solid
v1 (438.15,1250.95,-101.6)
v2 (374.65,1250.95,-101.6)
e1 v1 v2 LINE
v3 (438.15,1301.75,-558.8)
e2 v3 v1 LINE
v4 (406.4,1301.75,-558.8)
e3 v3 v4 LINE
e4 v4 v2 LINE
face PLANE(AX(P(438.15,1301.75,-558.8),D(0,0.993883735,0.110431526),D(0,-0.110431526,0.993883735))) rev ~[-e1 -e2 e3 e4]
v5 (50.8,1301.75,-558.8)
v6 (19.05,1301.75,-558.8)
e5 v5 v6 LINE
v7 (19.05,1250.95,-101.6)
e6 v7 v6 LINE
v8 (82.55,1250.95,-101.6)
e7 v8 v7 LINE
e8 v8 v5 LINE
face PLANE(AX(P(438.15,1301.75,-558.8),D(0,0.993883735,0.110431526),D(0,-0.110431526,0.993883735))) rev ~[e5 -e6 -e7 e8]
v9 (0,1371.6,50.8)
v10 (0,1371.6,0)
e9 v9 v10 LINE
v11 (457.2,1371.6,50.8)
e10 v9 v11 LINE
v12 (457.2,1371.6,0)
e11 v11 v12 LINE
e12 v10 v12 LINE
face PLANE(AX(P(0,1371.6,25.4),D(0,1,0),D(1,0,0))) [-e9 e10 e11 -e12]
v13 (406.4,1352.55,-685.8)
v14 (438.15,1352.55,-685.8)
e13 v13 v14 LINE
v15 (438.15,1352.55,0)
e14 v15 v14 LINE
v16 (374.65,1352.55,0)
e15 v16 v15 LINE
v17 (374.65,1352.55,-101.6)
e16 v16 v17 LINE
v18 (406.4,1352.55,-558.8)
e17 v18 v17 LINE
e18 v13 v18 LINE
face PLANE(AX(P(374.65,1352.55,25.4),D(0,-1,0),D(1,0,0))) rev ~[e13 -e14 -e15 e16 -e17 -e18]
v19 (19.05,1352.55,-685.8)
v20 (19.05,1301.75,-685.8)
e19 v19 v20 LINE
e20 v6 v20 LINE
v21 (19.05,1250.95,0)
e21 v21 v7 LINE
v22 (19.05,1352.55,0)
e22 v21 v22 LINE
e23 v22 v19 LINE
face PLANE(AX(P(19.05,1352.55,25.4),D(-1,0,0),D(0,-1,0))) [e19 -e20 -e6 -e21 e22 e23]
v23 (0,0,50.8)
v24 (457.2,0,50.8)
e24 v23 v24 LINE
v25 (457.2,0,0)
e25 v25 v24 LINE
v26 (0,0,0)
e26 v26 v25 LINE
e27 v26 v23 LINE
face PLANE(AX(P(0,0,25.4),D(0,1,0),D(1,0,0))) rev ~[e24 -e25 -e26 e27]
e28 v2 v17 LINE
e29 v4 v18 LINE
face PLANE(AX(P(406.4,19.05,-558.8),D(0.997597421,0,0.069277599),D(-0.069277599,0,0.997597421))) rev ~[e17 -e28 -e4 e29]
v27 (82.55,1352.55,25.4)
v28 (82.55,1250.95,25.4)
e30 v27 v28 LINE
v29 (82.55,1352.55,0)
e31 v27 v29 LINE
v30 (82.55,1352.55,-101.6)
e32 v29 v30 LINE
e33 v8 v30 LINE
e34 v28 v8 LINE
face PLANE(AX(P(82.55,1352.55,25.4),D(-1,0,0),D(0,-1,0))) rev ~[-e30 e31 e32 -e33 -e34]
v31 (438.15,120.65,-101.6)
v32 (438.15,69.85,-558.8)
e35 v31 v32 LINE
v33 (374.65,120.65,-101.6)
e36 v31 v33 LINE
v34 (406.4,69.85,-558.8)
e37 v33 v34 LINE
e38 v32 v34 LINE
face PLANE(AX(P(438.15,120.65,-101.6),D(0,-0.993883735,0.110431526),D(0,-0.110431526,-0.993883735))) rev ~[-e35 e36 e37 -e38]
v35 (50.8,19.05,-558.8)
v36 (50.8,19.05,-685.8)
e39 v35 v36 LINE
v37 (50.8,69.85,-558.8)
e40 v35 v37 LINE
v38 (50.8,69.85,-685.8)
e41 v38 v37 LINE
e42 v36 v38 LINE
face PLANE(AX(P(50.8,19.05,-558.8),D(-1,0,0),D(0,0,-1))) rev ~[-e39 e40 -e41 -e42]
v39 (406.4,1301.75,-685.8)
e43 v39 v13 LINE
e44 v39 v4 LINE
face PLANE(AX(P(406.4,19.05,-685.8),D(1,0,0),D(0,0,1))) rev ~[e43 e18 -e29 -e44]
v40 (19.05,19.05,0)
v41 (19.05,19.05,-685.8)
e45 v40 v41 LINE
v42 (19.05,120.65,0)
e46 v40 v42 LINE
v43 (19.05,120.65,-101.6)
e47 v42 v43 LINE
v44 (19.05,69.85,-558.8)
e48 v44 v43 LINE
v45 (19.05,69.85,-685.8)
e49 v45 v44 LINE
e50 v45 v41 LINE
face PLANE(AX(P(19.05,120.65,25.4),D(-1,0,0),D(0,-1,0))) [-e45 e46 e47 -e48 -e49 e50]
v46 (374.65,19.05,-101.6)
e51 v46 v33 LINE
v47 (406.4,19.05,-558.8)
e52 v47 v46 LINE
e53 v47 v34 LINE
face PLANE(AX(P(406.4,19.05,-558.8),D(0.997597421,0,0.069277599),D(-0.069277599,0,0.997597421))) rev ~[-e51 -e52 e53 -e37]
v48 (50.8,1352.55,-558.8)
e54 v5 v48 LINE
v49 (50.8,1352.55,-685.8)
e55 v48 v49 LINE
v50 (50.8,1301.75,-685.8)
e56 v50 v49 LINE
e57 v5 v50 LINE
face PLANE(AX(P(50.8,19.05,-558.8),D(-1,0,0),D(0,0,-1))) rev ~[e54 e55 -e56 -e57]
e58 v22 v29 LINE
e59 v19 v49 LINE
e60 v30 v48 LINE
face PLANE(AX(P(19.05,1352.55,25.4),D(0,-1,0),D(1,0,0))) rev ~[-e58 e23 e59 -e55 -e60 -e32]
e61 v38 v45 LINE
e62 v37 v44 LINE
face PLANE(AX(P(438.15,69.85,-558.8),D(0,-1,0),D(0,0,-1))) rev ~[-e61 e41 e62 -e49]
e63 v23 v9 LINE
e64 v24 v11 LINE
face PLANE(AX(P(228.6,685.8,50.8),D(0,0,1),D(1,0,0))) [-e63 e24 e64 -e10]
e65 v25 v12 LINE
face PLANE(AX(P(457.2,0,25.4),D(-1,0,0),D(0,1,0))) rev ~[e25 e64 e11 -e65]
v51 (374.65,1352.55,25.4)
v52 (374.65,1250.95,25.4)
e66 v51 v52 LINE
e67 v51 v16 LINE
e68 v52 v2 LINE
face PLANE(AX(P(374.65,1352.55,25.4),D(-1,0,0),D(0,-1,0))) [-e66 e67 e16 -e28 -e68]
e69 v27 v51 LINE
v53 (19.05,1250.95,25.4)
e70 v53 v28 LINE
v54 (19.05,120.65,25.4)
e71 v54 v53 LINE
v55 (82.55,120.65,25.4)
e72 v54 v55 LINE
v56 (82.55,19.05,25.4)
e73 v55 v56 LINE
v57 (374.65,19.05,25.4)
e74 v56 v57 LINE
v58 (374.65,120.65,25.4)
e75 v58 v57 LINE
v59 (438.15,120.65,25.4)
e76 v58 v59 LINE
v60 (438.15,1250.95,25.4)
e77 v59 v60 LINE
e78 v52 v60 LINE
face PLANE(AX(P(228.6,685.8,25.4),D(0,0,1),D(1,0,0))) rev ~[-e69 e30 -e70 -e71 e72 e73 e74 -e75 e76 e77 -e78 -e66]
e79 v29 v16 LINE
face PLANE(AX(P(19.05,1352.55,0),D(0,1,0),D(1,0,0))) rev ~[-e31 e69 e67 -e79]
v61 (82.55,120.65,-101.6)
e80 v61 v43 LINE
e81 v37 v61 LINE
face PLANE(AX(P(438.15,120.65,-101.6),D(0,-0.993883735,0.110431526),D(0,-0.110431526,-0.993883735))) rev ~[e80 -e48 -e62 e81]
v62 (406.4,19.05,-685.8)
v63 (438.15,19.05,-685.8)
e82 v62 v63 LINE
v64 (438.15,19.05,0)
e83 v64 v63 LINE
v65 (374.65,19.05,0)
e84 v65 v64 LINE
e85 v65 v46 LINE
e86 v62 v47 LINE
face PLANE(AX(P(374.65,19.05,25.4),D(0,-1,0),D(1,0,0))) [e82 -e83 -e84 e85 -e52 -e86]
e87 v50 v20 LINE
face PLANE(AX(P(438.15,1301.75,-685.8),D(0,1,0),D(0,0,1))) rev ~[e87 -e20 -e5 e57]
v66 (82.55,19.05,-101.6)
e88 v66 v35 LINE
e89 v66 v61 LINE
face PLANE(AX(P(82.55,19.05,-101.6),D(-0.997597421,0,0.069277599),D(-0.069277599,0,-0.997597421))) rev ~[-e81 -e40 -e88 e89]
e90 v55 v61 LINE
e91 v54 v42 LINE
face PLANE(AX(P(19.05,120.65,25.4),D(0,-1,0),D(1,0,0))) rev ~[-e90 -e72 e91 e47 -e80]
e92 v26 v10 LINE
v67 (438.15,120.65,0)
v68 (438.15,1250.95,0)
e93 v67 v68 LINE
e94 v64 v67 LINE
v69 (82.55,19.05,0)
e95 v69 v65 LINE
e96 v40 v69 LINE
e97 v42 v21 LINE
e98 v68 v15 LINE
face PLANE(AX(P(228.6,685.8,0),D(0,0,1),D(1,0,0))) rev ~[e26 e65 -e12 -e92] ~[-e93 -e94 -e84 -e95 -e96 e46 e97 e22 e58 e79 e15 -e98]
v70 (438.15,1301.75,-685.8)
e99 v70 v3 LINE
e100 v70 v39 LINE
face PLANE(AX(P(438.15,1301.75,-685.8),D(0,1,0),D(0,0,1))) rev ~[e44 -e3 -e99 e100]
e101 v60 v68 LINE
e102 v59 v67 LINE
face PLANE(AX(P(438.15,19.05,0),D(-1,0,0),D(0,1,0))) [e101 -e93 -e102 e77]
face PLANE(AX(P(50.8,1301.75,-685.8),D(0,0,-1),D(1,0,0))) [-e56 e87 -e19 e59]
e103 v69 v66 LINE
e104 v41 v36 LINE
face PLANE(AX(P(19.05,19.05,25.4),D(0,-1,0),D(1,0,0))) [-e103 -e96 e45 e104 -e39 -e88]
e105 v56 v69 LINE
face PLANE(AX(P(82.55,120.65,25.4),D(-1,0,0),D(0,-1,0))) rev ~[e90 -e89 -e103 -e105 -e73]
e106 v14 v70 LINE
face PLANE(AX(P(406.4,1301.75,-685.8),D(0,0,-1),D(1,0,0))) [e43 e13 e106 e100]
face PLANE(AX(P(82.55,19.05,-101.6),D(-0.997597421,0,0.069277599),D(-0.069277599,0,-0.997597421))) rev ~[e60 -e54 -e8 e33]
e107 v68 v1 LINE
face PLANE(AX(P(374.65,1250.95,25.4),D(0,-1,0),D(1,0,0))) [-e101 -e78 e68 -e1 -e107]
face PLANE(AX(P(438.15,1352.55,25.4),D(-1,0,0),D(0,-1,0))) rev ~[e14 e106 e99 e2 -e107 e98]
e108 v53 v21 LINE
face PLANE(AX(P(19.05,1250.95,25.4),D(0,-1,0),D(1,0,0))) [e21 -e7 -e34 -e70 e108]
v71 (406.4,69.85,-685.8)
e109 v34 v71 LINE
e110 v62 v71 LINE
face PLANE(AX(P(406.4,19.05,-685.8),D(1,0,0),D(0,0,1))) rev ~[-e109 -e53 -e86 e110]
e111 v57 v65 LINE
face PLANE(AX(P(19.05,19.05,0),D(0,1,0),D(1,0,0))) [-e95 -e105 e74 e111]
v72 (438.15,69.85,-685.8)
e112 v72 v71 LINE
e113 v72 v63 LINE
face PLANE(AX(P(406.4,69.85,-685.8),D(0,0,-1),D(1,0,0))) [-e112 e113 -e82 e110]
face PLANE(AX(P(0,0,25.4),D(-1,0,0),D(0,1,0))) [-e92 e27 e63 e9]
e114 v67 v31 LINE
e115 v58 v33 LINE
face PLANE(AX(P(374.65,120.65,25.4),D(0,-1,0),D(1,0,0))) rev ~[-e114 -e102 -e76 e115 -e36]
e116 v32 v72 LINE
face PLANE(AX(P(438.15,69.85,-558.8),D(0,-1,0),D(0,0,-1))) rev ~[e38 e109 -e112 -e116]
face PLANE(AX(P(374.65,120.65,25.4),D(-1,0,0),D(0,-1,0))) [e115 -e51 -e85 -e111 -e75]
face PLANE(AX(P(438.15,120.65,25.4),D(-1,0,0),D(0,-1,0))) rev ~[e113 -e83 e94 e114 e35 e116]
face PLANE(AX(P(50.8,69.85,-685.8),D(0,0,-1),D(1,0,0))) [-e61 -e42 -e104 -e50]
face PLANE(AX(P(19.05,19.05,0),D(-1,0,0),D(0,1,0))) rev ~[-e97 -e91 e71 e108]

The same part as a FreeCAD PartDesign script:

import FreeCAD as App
import Part
import Sketcher
Q = App.Units.Quantity

doc = App.newDocument("Part")
body = doc.addObject("PartDesign::Body", "Body")

sketch1 = doc.addObject("Sketcher::SketchObject", "Sketch")
body.addObject(sketch1)
sketch1.AttachmentSupport = (doc.XY_Plane, [""])
sketch1.MapMode = "FlatFace"
sketch1.addGeometry([
    Part.LineSegment(App.Vector(0, 1371.6, 0), App.Vector(0, 0, 0)),
    Part.LineSegment(App.Vector(0, 0, 0), App.Vector(457.2, 0, 0)),
    Part.LineSegment(App.Vector(457.2, 0, 0), App.Vector(457.2, 1371.6, 0)),
    Part.LineSegment(App.Vector(457.2, 1371.6, 0), App.Vector(0, 1371.6, 0)),
    Part.LineSegment(App.Vector(438.15, 19.05, 0), App.Vector(19.05, 19.05, 0)),
    Part.LineSegment(App.Vector(19.05, 19.05, 0), App.Vector(19.05, 1352.55, 0)),
    Part.LineSegment(App.Vector(19.05, 1352.55, 0), App.Vector(438.15, 1352.55, 0)),
    Part.LineSegment(App.Vector(438.15, 1352.55, 0), App.Vector(438.15, 19.05, 0)),
], False)
sketch1.addConstraint([
    Sketcher.Constraint("Coincident", 0, 2, 1, 1),
    Sketcher.Constraint("Coincident", 1, 2, 2, 1),
    Sketcher.Constraint("Coincident", 2, 2, 3, 1),
    Sketcher.Constraint("Coincident", 3, 2, 0, 1),
    Sketcher.Constraint("Coincident", 4, 2, 5, 1),
    Sketcher.Constraint("Coincident", 5, 2, 6, 1),
    Sketcher.Constraint("Coincident", 6, 2, 7, 1),
    Sketcher.Constraint("Coincident", 7, 2, 4, 1),
    Sketcher.Constraint("Vertical", 0),
    Sketcher.Constraint("Horizontal", 1),
    Sketcher.Constraint("Vertical", 2),
    Sketcher.Constraint("Horizontal", 3),
    Sketcher.Constraint("Horizontal", 4),
    Sketcher.Constraint("Vertical", 5),
    Sketcher.Constraint("Horizontal", 6),
    Sketcher.Constraint("Vertical", 7),
    Sketcher.Constraint("Coincident", 0, 2, -1, 1),
    Sketcher.Constraint("DistanceX", 1, 1, 1, 2, Q("18 in")),
    Sketcher.Constraint("DistanceY", 0, 2, 0, 1, Q("54 in")),
    Sketcher.Constraint("DistanceX", 4, 2, 4, 1, Q("16.5 in")),
    Sketcher.Constraint("DistanceY", 5, 1, 5, 2, Q("52.5 in")),
    Sketcher.Constraint("DistanceX", -1, 1, 4, 2, Q("0.75 in")),
    Sketcher.Constraint("DistanceY", -1, 1, 4, 2, Q("0.75 in")),
])
pad1 = doc.addObject("PartDesign::Pad", "Pad")
body.addObject(pad1)
pad1.Profile = sketch1
pad1.Length = Q("1 in")

sketch2 = doc.addObject("Sketcher::SketchObject", "Sketch001")
body.addObject(sketch2)
sketch2.AttachmentSupport = (doc.XY_Plane, [""])
sketch2.MapMode = "FlatFace"
sketch2.AttachmentOffset = App.Placement(App.Vector(0, 0, 1 * 25.4), App.Rotation())
sketch2.addGeometry([
    Part.LineSegment(App.Vector(0, 1371.6, 0), App.Vector(0, 0, 0)),
    Part.LineSegment(App.Vector(0, 0, 0), App.Vector(457.2, 0, 0)),
    Part.LineSegment(App.Vector(457.2, 0, 0), App.Vector(457.2, 1371.6, 0)),
    Part.LineSegment(App.Vector(457.2, 1371.6, 0), App.Vector(0, 1371.6, 0)),
], False)
sketch2.addConstraint([
    Sketcher.Constraint("Coincident", 0, 2, 1, 1),
    Sketcher.Constraint("Coincident", 1, 2, 2, 1),
    Sketcher.Constraint("Coincident", 2, 2, 3, 1),
    Sketcher.Constraint("Coincident", 3, 2, 0, 1),
    Sketcher.Constraint("Vertical", 0),
    Sketcher.Constraint("Horizontal", 1),
    Sketcher.Constraint("Vertical", 2),
    Sketcher.Constraint("Horizontal", 3),
    Sketcher.Constraint("Coincident", 0, 2, -1, 1),
    Sketcher.Constraint("DistanceX", 1, 1, 1, 2, Q("18 in")),
    Sketcher.Constraint("DistanceY", 0, 2, 0, 1, Q("54 in")),
])
pad2 = doc.addObject("PartDesign::Pad", "Pad001")
body.addObject(pad2)
pad2.Profile = sketch2
pad2.Length = Q("1 in")

sketch3 = doc.addObject("Sketcher::SketchObject", "Sketch002")
body.addObject(sketch3)
sketch3.AttachmentSupport = (doc.XY_Plane, [""])
sketch3.MapMode = "FlatFace"
sketch3.AttachmentOffset = App.Placement(App.Vector(0, 0, 1 * 25.4), App.Rotation())
sketch3.addGeometry([
    Part.LineSegment(App.Vector(19.05, 19.05, 0), App.Vector(19.05, 120.65, 0)),
    Part.LineSegment(App.Vector(19.05, 120.65, 0), App.Vector(82.55, 120.65, 0)),
    Part.LineSegment(App.Vector(82.55, 120.65, 0), App.Vector(82.55, 19.05, 0)),
    Part.LineSegment(App.Vector(82.55, 19.05, 0), App.Vector(19.05, 19.05, 0)),
    Part.LineSegment(App.Vector(374.65, 19.05, 0), App.Vector(374.65, 120.65, 0)),
    Part.LineSegment(App.Vector(374.65, 120.65, 0), App.Vector(438.15, 120.65, 0)),
    Part.LineSegment(App.Vector(438.15, 120.65, 0), App.Vector(438.15, 19.05, 0)),
    Part.LineSegment(App.Vector(438.15, 19.05, 0), App.Vector(374.65, 19.05, 0)),
    Part.LineSegment(App.Vector(19.05, 1250.95, 0), App.Vector(19.05, 1352.55, 0)),
    Part.LineSegment(App.Vector(19.05, 1352.55, 0), App.Vector(82.55, 1352.55, 0)),
    Part.LineSegment(App.Vector(82.55, 1352.55, 0), App.Vector(82.55, 1250.95, 0)),
    Part.LineSegment(App.Vector(82.55, 1250.95, 0), App.Vector(19.05, 1250.95, 0)),
    Part.LineSegment(App.Vector(374.65, 1250.95, 0), App.Vector(374.65, 1352.55, 0)),
    Part.LineSegment(App.Vector(374.65, 1352.55, 0), App.Vector(438.15, 1352.55, 0)),
    Part.LineSegment(App.Vector(438.15, 1352.55, 0), App.Vector(438.15, 1250.95, 0)),
    Part.LineSegment(App.Vector(438.15, 1250.95, 0), App.Vector(374.65, 1250.95, 0)),
], False)
sketch3.addConstraint([
    Sketcher.Constraint("Coincident", 0, 2, 1, 1),
    Sketcher.Constraint("Coincident", 1, 2, 2, 1),
    Sketcher.Constraint("Coincident", 2, 2, 3, 1),
    Sketcher.Constraint("Coincident", 3, 2, 0, 1),
    Sketcher.Constraint("Coincident", 4, 2, 5, 1),
    Sketcher.Constraint("Coincident", 5, 2, 6, 1),
    Sketcher.Constraint("Coincident", 6, 2, 7, 1),
    Sketcher.Constraint("Coincident", 7, 2, 4, 1),
    Sketcher.Constraint("Coincident", 8, 2, 9, 1),
    Sketcher.Constraint("Coincident", 9, 2, 10, 1),
    Sketcher.Constraint("Coincident", 10, 2, 11, 1),
    Sketcher.Constraint("Coincident", 11, 2, 8, 1),
    Sketcher.Constraint("Coincident", 12, 2, 13, 1),
    Sketcher.Constraint("Coincident", 13, 2, 14, 1),
    Sketcher.Constraint("Coincident", 14, 2, 15, 1),
    Sketcher.Constraint("Coincident", 15, 2, 12, 1),
    Sketcher.Constraint("Vertical", 0),
    Sketcher.Constraint("Horizontal", 1),
    Sketcher.Constraint("Vertical", 2),
    Sketcher.Constraint("Horizontal", 3),
    Sketcher.Constraint("Vertical", 4),
    Sketcher.Constraint("Horizontal", 5),
    Sketcher.Constraint("Vertical", 6),
    Sketcher.Constraint("Horizontal", 7),
    Sketcher.Constraint("Vertical", 8),
    Sketcher.Constraint("Horizontal", 9),
    Sketcher.Constraint("Vertical", 10),
    Sketcher.Constraint("Horizontal", 11),
    Sketcher.Constraint("Vertical", 12),
    Sketcher.Constraint("Horizontal", 13),
    Sketcher.Constraint("Vertical", 14),
    Sketcher.Constraint("Horizontal", 15),
    Sketcher.Constraint("Horizontal", 1, 2, 4, 2),
    Sketcher.Constraint("Horizontal", 3, 2, 6, 2),
    Sketcher.Constraint("Horizontal", 9, 2, 12, 2),
    Sketcher.Constraint("Horizontal", 11, 2, 14, 2),
    Sketcher.Constraint("Vertical", 3, 2, 8, 2),
    Sketcher.Constraint("Vertical", 2, 2, 9, 2),
    Sketcher.Constraint("Vertical", 7, 2, 12, 2),
    Sketcher.Constraint("Vertical", 6, 2, 13, 2),
    Sketcher.Constraint("Equal", 3, 5),
    Sketcher.Constraint("Equal", 6, 8),
    Sketcher.Constraint("DistanceY", 0, 1, 0, 2, Q("4 in")),
    Sketcher.Constraint("DistanceX", 1, 1, 1, 2, Q("2.5 in")),
    Sketcher.Constraint("DistanceX", 0, 2, 4, 2, Q("14 in")),
    Sketcher.Constraint("DistanceY", 0, 2, 8, 2, Q("48.5 in")),
    Sketcher.Constraint("DistanceX", -1, 1, 0, 2, Q("0.75 in")),
    Sketcher.Constraint("DistanceY", -1, 1, 0, 2, Q("4.75 in")),
])
pad3 = doc.addObject("PartDesign::Pad", "Pad002")
body.addObject(pad3)
pad3.Profile = sketch3
pad3.Length = Q("28 in")
pad3.Reversed = True

sketch4 = doc.addObject("Sketcher::SketchObject", "Sketch003")
body.addObject(sketch4)
sketch4.AttachmentSupport = (doc.XZ_Plane, [""])
sketch4.MapMode = "FlatFace"
sketch4.AttachmentOffset = App.Placement(App.Vector(0, 0, -0.75 * 25.4), App.Rotation())
sketch4.addGeometry([
    Part.LineSegment(App.Vector(50.8, -558.8, 0), App.Vector(50.8, -685.8, 0)),
    Part.LineSegment(App.Vector(50.8, -685.8, 0), App.Vector(406.4, -685.8, 0)),
    Part.LineSegment(App.Vector(406.4, -685.8, 0), App.Vector(406.4, -558.8, 0)),
    Part.LineSegment(App.Vector(406.4, -558.8, 0), App.Vector(374.65, -101.6, 0)),
    Part.LineSegment(App.Vector(374.65, -101.6, 0), App.Vector(82.55, -101.6, 0)),
    Part.LineSegment(App.Vector(82.55, -101.6, 0), App.Vector(50.8, -558.8, 0)),
], False)
sketch4.addConstraint([
    Sketcher.Constraint("Coincident", 0, 2, 1, 1),
    Sketcher.Constraint("Coincident", 1, 2, 2, 1),
    Sketcher.Constraint("Coincident", 2, 2, 3, 1),
    Sketcher.Constraint("Coincident", 3, 2, 4, 1),
    Sketcher.Constraint("Coincident", 4, 2, 5, 1),
    Sketcher.Constraint("Coincident", 5, 2, 0, 1),
    Sketcher.Constraint("Vertical", 0),
    Sketcher.Constraint("Horizontal", 1),
    Sketcher.Constraint("Vertical", 2),
    Sketcher.Constraint("Horizontal", 4),
    Sketcher.Constraint("Horizontal", 2, 2, 5, 2),
    Sketcher.Constraint("Equal", 3, 5),
    Sketcher.Constraint("DistanceX", 1, 1, 1, 2, Q("14 in")),
    Sketcher.Constraint("DistanceY", 0, 2, 0, 1, Q("5 in")),
    Sketcher.Constraint("DistanceX", 4, 2, 4, 1, Q("11.5 in")),
    Sketcher.Constraint("DistanceX", -1, 1, 0, 2, Q("2 in")),
    Sketcher.Constraint("DistanceY", 0, 2, -1, 1, Q("27 in")),
    Sketcher.Constraint("DistanceY", 3, 2, -1, 1, Q("4 in")),
])
pocket1 = doc.addObject("PartDesign::Pocket", "Pocket")
body.addObject(pocket1)
pocket1.Profile = sketch4
pocket1.Type = "ThroughAll"

sketch5 = doc.addObject("Sketcher::SketchObject", "Sketch004")
body.addObject(sketch5)
sketch5.AttachmentSupport = (doc.YZ_Plane, [""])
sketch5.MapMode = "FlatFace"
sketch5.AttachmentOffset = App.Placement(App.Vector(0, 0, 17.25 * 25.4), App.Rotation())
sketch5.addGeometry([
    Part.LineSegment(App.Vector(69.85, -558.8, 0), App.Vector(69.85, -685.8, 0)),
    Part.LineSegment(App.Vector(69.85, -685.8, 0), App.Vector(1301.75, -685.8, 0)),
    Part.LineSegment(App.Vector(1301.75, -685.8, 0), App.Vector(1301.75, -558.8, 0)),
    Part.LineSegment(App.Vector(1301.75, -558.8, 0), App.Vector(1250.95, -101.6, 0)),
    Part.LineSegment(App.Vector(1250.95, -101.6, 0), App.Vector(120.65, -101.6, 0)),
    Part.LineSegment(App.Vector(120.65, -101.6, 0), App.Vector(69.85, -558.8, 0)),
], False)
sketch5.addConstraint([
    Sketcher.Constraint("Coincident", 0, 2, 1, 1),
    Sketcher.Constraint("Coincident", 1, 2, 2, 1),
    Sketcher.Constraint("Coincident", 2, 2, 3, 1),
    Sketcher.Constraint("Coincident", 3, 2, 4, 1),
    Sketcher.Constraint("Coincident", 4, 2, 5, 1),
    Sketcher.Constraint("Coincident", 5, 2, 0, 1),
    Sketcher.Constraint("Vertical", 0),
    Sketcher.Constraint("Horizontal", 1),
    Sketcher.Constraint("Vertical", 2),
    Sketcher.Constraint("Horizontal", 4),
    Sketcher.Constraint("Horizontal", 2, 2, 5, 2),
    Sketcher.Constraint("Equal", 3, 5),
    Sketcher.Constraint("DistanceY", 0, 2, 0, 1, Q("5 in")),
    Sketcher.Constraint("DistanceX", 1, 1, 1, 2, Q("48.5 in")),
    Sketcher.Constraint("DistanceX", 4, 2, 4, 1, Q("44.5 in")),
    Sketcher.Constraint("DistanceY", 0, 2, -1, 1, Q("27 in")),
    Sketcher.Constraint("DistanceY", 3, 2, -1, 1, Q("4 in")),
    Sketcher.Constraint("DistanceX", -1, 1, 0, 2, Q("2.75 in")),
])
pocket2 = doc.addObject("PartDesign::Pocket", "Pocket001")
body.addObject(pocket2)
pocket2.Profile = sketch5
pocket2.Type = "ThroughAll"

doc.recompute()
